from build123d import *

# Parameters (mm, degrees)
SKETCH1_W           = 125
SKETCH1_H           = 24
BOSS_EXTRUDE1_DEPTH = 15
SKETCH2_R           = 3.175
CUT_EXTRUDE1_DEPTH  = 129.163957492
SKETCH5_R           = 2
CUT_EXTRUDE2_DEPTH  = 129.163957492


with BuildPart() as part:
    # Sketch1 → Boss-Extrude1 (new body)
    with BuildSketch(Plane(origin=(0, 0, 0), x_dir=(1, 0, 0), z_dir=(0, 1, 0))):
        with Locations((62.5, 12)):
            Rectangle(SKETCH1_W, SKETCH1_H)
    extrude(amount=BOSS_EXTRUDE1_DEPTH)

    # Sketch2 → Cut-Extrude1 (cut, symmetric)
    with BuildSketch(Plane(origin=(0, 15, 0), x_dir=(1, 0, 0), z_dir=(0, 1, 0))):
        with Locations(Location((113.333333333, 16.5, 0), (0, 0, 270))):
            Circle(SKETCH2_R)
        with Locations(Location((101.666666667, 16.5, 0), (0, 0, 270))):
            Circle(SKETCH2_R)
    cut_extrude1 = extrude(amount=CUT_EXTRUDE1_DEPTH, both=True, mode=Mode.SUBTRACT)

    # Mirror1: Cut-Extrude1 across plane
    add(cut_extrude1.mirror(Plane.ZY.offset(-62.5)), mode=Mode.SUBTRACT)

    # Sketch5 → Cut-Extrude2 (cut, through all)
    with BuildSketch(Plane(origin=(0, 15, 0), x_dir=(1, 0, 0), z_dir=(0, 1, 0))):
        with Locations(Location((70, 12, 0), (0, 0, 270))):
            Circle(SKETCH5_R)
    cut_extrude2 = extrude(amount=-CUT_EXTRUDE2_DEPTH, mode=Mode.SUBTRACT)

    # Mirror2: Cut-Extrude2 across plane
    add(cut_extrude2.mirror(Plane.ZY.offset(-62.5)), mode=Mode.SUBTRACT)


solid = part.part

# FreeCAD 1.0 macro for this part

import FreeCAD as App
import Part
import Sketcher
from FreeCAD import Vector
Q = App.Units.Quantity


def add_polygon(sketch, points):
    """Adds a closed chain of lines whose ends are joined by coincident constraints."""
    first, n = sketch.GeometryCount, len(points)
    for a, b in zip(points, points[1:] + points[:1]):
        sketch.addGeometry(Part.LineSegment(App.Vector(*a, 0), App.Vector(*b, 0)), False)
    for i in range(n):
        sketch.addConstraint(Sketcher.Constraint("Coincident", first + i, 2, first + (i + 1) % n, 1))

doc = App.newDocument("Part")
body = doc.addObject("PartDesign::Body", "Body")

# Sketch on XZ plane
sketch1 = body.newObject("Sketcher::SketchObject", "Sketch")
sketch1.AttachmentSupport = (doc.getObject("XZ_Plane"), [""])
sketch1.MapMode = "FlatFace"
add_polygon(sketch1, [(0, -24), (0, 0), (125, 0), (125, -24)])  # lines 0-3
sketch1.addConstraint([
    Sketcher.Constraint("Vertical", 0),
    Sketcher.Constraint("Horizontal", 1),
    Sketcher.Constraint("Vertical", 2),
    Sketcher.Constraint("Horizontal", 3),
    Sketcher.Constraint("Coincident", 0, 2, -1, 1),
    Sketcher.Constraint("DistanceX", 1, 1, 1, 2, Q("125 mm")),
    Sketcher.Constraint("DistanceY", 0, 1, 0, 2, Q("24 mm")),
])
pad1 = body.newObject("PartDesign::Pad", "Pad")
pad1.Profile = sketch1
pad1.Length = 15
pad1.Reversed = True

# Sketch on XZ plane
sketch2 = body.newObject("Sketcher::SketchObject", "Sketch001")
sketch2.AttachmentSupport = (doc.getObject("XZ_Plane"), [""])
sketch2.MapMode = "FlatFace"
sketch2.AttachmentOffset = App.Placement(Vector(0, 0, -15), App.Rotation())
sketch2.addGeometry([
    Part.Circle(Vector(113.3, -16.5, 0), Vector(0, 0, 1), 3.2),
    Part.Circle(Vector(101.7, -16.5, 0), Vector(0, 0, 1), 3.2),
], False)
sketch2.addConstraint([
    Sketcher.Constraint("Equal", 0, 1),
    Sketcher.Constraint("Horizontal", 0, 3, 1, 3),
    Sketcher.Constraint("Diameter", 0, Q("6.35 mm")),
    Sketcher.Constraint("DistanceY", 0, 3, -1, 1, Q("16.5 mm")),
    Sketcher.Constraint("DistanceX", -1, 1, 0, 3, Q("113.333333 mm")),
    Sketcher.Constraint("DistanceX", -1, 1, 1, 3, Q("101.666667 mm")),
])
pocket1 = body.newObject("PartDesign::Pocket", "Pocket")
pocket1.Profile = sketch2
pocket1.Length = 258.327915
pocket1.Midplane = True
doc.recompute()

datumplane = body.newObject("PartDesign::Plane", "DatumPlane")
datumplane.AttachmentSupport = (doc.getObject("YZ_Plane"), [""])
datumplane.MapMode = "FlatFace"
datumplane.AttachmentOffset = App.Placement(Vector(0, 0, 62.5), App.Rotation())
mirrored = body.newObject("PartDesign::Mirrored", "Mirrored")
mirrored.Originals = [pocket1]
mirrored.MirrorPlane = (datumplane, [""])
body.Tip = mirrored

# Sketch on XZ plane
sketch3 = body.newObject("Sketcher::SketchObject", "Sketch002")
sketch3.AttachmentSupport = (doc.getObject("XZ_Plane"), [""])
sketch3.MapMode = "FlatFace"
sketch3.AttachmentOffset = App.Placement(Vector(0, 0, -15), App.Rotation())
sketch3.addGeometry(Part.Circle(Vector(70, -12, 0), Vector(0, 0, 1), 2), False)
sketch3.addConstraint([
    Sketcher.Constraint("Diameter", 0, Q("4 mm")),
    Sketcher.Constraint("DistanceX", -1, 1, 0, 3, Q("70 mm")),
    Sketcher.Constraint("DistanceY", 0, 3, -1, 1, Q("12 mm")),
])
pocket2 = body.newObject("PartDesign::Pocket", "Pocket001")
pocket2.Profile = sketch3
pocket2.Type = "ThroughAll"
pocket2.Reversed = True
doc.recompute()

datumplane2 = body.newObject("PartDesign::Plane", "DatumPlane001")
datumplane2.AttachmentSupport = (doc.getObject("YZ_Plane"), [""])
datumplane2.MapMode = "FlatFace"
datumplane2.AttachmentOffset = App.Placement(Vector(0, 0, 62.5), App.Rotation())
mirrored2 = body.newObject("PartDesign::Mirrored", "Mirrored001")
mirrored2.Originals = [pocket2]
mirrored2.MirrorPlane = (datumplane2, [""])
body.Tip = mirrored2

doc.recompute()
